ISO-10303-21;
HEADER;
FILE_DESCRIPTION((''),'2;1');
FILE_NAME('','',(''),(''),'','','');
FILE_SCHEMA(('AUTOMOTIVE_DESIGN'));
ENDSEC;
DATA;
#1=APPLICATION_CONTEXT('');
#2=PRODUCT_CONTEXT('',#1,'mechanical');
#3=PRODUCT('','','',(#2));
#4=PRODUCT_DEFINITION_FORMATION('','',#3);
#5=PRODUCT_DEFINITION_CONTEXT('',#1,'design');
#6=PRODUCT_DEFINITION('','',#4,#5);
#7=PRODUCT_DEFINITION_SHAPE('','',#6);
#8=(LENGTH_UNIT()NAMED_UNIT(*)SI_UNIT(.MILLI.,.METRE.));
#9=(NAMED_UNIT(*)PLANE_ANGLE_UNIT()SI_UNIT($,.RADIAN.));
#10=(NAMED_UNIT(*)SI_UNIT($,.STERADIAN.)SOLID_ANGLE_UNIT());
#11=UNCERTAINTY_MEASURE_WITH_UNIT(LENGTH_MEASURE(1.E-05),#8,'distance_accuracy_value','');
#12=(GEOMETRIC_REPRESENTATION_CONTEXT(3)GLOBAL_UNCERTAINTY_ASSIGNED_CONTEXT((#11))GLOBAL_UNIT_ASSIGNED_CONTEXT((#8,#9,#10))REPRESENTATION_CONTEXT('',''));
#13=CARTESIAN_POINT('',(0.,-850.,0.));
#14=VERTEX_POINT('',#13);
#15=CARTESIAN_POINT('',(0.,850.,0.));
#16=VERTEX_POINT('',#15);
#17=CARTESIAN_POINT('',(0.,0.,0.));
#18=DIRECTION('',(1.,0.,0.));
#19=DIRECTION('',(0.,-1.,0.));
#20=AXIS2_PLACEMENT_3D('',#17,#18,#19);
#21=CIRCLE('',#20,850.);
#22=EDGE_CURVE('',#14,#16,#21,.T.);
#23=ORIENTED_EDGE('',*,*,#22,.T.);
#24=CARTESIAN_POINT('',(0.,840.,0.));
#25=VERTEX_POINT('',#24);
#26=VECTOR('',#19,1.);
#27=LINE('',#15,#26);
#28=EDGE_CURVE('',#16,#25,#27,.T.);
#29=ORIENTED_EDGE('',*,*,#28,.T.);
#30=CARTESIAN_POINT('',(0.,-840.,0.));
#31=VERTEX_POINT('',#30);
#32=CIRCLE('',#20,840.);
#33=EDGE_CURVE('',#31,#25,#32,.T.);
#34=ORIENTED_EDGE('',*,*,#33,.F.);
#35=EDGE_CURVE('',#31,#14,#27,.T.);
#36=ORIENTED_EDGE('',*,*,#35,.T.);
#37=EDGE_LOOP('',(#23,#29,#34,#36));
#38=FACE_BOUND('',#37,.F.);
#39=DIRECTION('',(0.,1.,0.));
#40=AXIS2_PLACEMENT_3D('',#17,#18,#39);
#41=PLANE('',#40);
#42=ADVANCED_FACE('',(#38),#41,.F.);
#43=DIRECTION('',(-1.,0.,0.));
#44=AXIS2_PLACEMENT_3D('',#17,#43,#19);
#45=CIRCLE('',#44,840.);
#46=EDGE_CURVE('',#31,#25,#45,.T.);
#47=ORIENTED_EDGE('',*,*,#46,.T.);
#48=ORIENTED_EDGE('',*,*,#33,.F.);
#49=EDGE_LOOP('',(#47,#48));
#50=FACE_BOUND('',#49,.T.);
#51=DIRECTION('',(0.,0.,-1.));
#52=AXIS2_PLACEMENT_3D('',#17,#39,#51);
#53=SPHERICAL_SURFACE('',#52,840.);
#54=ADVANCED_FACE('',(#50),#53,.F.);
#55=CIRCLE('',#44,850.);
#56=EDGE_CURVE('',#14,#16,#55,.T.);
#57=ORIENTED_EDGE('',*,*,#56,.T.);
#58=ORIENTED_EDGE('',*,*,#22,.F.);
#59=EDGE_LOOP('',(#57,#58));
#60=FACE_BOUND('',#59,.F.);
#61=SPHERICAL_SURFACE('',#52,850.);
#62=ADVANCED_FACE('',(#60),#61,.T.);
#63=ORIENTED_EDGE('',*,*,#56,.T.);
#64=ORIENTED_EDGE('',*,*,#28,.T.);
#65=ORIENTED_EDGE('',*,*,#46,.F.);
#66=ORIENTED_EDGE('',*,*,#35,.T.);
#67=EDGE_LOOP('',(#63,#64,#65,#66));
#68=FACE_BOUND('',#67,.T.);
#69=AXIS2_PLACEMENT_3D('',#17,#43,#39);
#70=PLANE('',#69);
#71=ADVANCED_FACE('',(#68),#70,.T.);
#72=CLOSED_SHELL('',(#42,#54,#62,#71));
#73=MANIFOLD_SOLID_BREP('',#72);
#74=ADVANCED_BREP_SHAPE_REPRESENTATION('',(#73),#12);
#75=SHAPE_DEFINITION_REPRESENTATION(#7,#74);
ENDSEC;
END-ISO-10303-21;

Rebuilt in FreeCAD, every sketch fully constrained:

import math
import FreeCAD as App
import Part
import Sketcher
Q = App.Units.Quantity

doc = App.newDocument("Part")
params = doc.addObject("Spreadsheet::Sheet", "Params")
for row, (alias, value) in enumerate([
    ("sketch1_radius", "850 mm"),
    ("sketch1_radius2", "840 mm"),
    ("revolution_angle", "180 deg"),
], start=1):
    params.set(f"A{row}", alias)
    params.set(f"B{row}", "=" + value)
    params.setAlias(f"B{row}", alias)

body = doc.addObject("PartDesign::Body", "Body")

# Sketch on YZ plane
sketch1 = doc.addObject("Sketcher::SketchObject", "Sketch")
body.addObject(sketch1)
sketch1.AttachmentSupport = (doc.YZ_Plane, [""])
sketch1.MapMode = "FlatFace"
sketch1.addGeometry(Part.LineSegment(App.Vector(-840, 0, 0), App.Vector(-850, 0, 0)), False)
sketch1.addGeometry(Part.ArcOfCircle(Part.Circle(App.Vector(0, 0, 0), App.Vector(0, 0, 1), 850), math.radians(180), math.radians(360)), False)
sketch1.addGeometry(Part.LineSegment(App.Vector(850, 0, 0), App.Vector(840, 0, 0)), False)
sketch1.addGeometry(Part.ArcOfCircle(Part.Circle(App.Vector(0, 0, 0), App.Vector(0, 0, 1), 840), math.radians(180), math.radians(360)), False)
sketch1.addConstraint(Sketcher.Constraint("Coincident", 0, 2, 1, 1))
sketch1.addConstraint(Sketcher.Constraint("Coincident", 1, 2, 2, 1))
sketch1.addConstraint(Sketcher.Constraint("Coincident", 2, 2, 3, 2))
sketch1.addConstraint(Sketcher.Constraint("Coincident", 3, 1, 0, 1))
sketch1.addConstraint(Sketcher.Constraint("Horizontal", 0))
sketch1.addConstraint(Sketcher.Constraint("Horizontal", 2))
sketch1.addConstraint(Sketcher.Constraint("Coincident", 1, 3, -1, 1))
sketch1.addConstraint(Sketcher.Constraint("Coincident", 3, 3, -1, 1))
sketch1.addConstraint(Sketcher.Constraint("PointOnObject", 0, 2, -1))
sketch1.addConstraint(Sketcher.Constraint("PointOnObject", 2, 2, -1))
sketch1.addConstraint(Sketcher.Constraint("Radius", 1, Q("850 mm")))
sketch1.addConstraint(Sketcher.Constraint("Radius", 3, Q("840 mm")))
sketch1.setExpression("Constraints[10]", "Params.sketch1_radius")
sketch1.setExpression("Constraints[11]", "Params.sketch1_radius2")
revolution = doc.addObject("PartDesign::Revolution", "Revolution")
body.addObject(revolution)
revolution.Profile = sketch1
revolution.ReferenceAxis = (sketch1, ["H_Axis"])
revolution.setExpression("Angle", "Params.revolution_angle")
revolution.Reversed = True

doc.recompute()
